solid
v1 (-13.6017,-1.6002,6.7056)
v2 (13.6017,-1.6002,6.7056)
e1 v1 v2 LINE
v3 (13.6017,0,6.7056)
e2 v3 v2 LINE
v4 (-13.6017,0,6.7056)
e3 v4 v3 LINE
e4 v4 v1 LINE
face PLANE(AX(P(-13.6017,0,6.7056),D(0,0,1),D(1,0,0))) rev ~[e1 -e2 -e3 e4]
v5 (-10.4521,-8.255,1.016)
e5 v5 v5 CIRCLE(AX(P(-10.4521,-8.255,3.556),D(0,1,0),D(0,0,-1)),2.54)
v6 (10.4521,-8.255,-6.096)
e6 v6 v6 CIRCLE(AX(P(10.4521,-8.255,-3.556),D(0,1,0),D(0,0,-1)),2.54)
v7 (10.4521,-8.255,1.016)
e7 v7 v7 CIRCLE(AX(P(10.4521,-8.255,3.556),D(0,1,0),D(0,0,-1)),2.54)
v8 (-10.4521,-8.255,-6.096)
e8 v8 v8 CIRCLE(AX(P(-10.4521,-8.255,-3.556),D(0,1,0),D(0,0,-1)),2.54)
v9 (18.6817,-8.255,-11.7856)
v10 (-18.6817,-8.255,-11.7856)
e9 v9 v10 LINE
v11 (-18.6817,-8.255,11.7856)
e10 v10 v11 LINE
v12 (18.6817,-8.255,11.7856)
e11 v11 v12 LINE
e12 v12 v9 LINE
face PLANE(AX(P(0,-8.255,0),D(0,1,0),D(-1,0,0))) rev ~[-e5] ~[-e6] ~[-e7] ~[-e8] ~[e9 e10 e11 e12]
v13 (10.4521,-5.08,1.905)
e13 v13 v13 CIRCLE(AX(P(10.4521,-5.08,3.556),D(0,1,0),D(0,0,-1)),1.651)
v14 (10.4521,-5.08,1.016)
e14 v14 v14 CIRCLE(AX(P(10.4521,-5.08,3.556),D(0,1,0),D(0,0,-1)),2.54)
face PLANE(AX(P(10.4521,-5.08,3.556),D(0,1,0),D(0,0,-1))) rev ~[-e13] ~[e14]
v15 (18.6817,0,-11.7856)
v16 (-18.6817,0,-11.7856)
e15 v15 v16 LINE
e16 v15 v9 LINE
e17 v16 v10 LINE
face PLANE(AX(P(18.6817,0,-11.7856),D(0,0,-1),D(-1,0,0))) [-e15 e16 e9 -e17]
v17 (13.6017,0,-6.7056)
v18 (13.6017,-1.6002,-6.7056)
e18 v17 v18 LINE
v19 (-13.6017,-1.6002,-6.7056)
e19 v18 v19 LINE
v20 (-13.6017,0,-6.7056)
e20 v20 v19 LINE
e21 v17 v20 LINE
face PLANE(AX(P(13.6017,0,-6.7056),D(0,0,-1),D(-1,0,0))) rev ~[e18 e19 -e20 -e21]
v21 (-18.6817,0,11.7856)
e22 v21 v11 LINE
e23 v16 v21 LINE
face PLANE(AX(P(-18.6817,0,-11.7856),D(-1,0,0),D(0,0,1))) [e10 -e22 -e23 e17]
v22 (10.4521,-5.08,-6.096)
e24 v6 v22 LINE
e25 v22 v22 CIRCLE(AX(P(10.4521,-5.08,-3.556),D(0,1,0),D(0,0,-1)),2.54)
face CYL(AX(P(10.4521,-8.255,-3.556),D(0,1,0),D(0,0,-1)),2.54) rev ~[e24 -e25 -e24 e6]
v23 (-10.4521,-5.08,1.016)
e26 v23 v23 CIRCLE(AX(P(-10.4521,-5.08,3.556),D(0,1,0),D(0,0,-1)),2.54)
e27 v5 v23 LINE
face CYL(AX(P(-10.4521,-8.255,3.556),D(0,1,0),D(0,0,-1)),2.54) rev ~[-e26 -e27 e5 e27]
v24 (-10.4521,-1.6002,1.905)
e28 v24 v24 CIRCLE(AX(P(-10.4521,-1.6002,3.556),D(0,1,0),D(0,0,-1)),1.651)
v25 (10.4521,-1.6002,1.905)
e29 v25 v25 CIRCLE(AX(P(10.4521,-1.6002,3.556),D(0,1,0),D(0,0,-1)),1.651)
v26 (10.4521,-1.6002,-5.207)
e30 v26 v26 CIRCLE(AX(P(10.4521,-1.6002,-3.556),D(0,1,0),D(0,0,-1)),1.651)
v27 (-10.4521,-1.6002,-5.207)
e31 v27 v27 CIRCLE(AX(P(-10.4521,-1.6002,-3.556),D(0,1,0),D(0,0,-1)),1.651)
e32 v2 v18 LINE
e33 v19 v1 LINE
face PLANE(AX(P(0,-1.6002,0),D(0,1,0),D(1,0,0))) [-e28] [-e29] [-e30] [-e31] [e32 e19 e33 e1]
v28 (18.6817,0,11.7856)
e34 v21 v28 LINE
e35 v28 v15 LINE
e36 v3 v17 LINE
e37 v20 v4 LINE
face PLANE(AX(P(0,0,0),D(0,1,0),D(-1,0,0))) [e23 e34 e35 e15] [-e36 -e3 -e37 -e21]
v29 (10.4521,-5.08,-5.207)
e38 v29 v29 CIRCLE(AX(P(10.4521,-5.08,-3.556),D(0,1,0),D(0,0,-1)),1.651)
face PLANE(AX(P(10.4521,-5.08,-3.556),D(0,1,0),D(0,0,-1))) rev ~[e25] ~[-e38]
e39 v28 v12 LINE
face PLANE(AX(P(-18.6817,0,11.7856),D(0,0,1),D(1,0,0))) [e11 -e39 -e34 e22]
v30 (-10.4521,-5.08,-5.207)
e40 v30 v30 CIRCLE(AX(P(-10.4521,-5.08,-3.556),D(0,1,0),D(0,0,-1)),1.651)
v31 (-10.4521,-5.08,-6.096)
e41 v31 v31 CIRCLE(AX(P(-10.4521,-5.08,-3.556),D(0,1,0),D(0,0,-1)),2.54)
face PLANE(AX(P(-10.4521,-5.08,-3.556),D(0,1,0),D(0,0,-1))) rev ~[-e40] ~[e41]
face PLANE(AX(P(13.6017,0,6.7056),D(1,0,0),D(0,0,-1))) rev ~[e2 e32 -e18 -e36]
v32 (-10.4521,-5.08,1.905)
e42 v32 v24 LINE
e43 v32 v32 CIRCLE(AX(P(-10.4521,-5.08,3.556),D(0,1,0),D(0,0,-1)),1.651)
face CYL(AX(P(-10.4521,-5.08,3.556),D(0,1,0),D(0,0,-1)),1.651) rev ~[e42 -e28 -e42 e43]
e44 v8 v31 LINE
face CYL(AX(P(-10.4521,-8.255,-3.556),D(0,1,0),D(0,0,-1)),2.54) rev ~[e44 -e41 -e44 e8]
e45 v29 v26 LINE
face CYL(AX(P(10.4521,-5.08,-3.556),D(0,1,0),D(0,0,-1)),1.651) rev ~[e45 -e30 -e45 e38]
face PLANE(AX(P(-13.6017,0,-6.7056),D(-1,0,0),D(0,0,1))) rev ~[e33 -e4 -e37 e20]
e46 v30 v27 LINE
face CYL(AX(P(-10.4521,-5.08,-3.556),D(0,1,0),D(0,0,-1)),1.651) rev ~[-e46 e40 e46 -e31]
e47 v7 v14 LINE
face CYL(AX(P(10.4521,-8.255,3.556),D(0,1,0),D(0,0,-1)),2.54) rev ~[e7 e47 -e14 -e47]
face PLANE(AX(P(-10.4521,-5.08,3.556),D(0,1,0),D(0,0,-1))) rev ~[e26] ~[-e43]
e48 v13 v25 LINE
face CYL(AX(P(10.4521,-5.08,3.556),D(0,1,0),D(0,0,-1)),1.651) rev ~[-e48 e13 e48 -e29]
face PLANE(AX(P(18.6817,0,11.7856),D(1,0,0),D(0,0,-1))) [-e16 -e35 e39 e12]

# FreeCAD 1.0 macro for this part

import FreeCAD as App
import Part
import Sketcher

V = App.Vector
Q = App.Units.Quantity

doc = App.newDocument("Part")
params = doc.addObject("Spreadsheet::Sheet", "Params")
for row, (alias, value) in enumerate([
    ("sketch1_width", "1.471 in"),
    ("sketch1_height", "0.928 in"),
    ("pad1_length", "0.325 in"),
    ("sketch2_width", "1.071 in"),
    ("sketch2_height", "0.528 in"),
    ("pocket1_length", "0.063 in"),
    ("sketch3_diameter", "0.2 in"),
    ("hole_diameter", "0.2 in"),
    ("hole_depth", "0.125 in"),
    ("sketch4_diameter", "0.13 in"),
    ("hole2_diameter", "0.13 in"),
], start=1):
    params.set(f"A{row}", alias)
    params.set(f"B{row}", "=" + value)
    params.setAlias(f"B{row}", alias)

body = doc.addObject("PartDesign::Body", "Body")

sketch1 = doc.addObject("Sketcher::SketchObject", "Sketch")
body.addObject(sketch1)
sketch1.AttachmentSupport = (doc.XZ_Plane, [""])
sketch1.MapMode = "FlatFace"
sketch1.addGeometry(Part.LineSegment(V(-19, -12, 0), V(-19, 12, 0)), False)
sketch1.addGeometry(Part.LineSegment(V(-19, 12, 0), V(19, 12, 0)), False)
sketch1.addGeometry(Part.LineSegment(V(19, 12, 0), V(19, -12, 0)), False)
sketch1.addGeometry(Part.LineSegment(V(19, -12, 0), V(-19, -12, 0)), False)
sketch1.addConstraint(Sketcher.Constraint("Coincident", 0, 2, 1, 1))
sketch1.addConstraint(Sketcher.Constraint("Coincident", 1, 2, 2, 1))
sketch1.addConstraint(Sketcher.Constraint("Coincident", 2, 2, 3, 1))
sketch1.addConstraint(Sketcher.Constraint("Coincident", 3, 2, 0, 1))
sketch1.addConstraint(Sketcher.Constraint("Vertical", 0))
sketch1.addConstraint(Sketcher.Constraint("Horizontal", 1))
sketch1.addConstraint(Sketcher.Constraint("Vertical", 2))
sketch1.addConstraint(Sketcher.Constraint("Horizontal", 3))
sketch1.addConstraint(Sketcher.Constraint("Symmetric", 0, 2, 2, 2, -1, 1))
sketch1.addConstraint(Sketcher.Constraint("DistanceX", 1, 1, 1, 2, Q("1.471 in")))
sketch1.addConstraint(Sketcher.Constraint("DistanceY", 0, 1, 0, 2, Q("0.928 in")))
sketch1.setExpression("Constraints[9]", "Params.sketch1_width")
sketch1.setExpression("Constraints[10]", "Params.sketch1_height")
pad1 = doc.addObject("PartDesign::Pad", "Pad")
body.addObject(pad1)
pad1.Profile = sketch1
pad1.setExpression("Length", "Params.pad1_length")

sketch2 = doc.addObject("Sketcher::SketchObject", "Sketch001")
body.addObject(sketch2)
sketch2.AttachmentSupport = (doc.XZ_Plane, [""])
sketch2.MapMode = "FlatFace"
sketch2.addGeometry(Part.LineSegment(V(-14, -7, 0), V(-14, 7, 0)), False)
sketch2.addGeometry(Part.LineSegment(V(-14, 7, 0), V(14, 7, 0)), False)
sketch2.addGeometry(Part.LineSegment(V(14, 7, 0), V(14, -7, 0)), False)
sketch2.addGeometry(Part.LineSegment(V(14, -7, 0), V(-14, -7, 0)), False)
sketch2.addConstraint(Sketcher.Constraint("Coincident", 0, 2, 1, 1))
sketch2.addConstraint(Sketcher.Constraint("Coincident", 1, 2, 2, 1))
sketch2.addConstraint(Sketcher.Constraint("Coincident", 2, 2, 3, 1))
sketch2.addConstraint(Sketcher.Constraint("Coincident", 3, 2, 0, 1))
sketch2.addConstraint(Sketcher.Constraint("Vertical", 0))
sketch2.addConstraint(Sketcher.Constraint("Horizontal", 1))
sketch2.addConstraint(Sketcher.Constraint("Vertical", 2))
sketch2.addConstraint(Sketcher.Constraint("Horizontal", 3))
sketch2.addConstraint(Sketcher.Constraint("Symmetric", 0, 2, 2, 2, -1, 1))
sketch2.addConstraint(Sketcher.Constraint("DistanceX", 1, 1, 1, 2, Q("1.071 in")))
sketch2.addConstraint(Sketcher.Constraint("DistanceY", 0, 1, 0, 2, Q("0.528 in")))
sketch2.setExpression("Constraints[9]", "Params.sketch2_width")
sketch2.setExpression("Constraints[10]", "Params.sketch2_height")
pocket1 = doc.addObject("PartDesign::Pocket", "Pocket")
body.addObject(pocket1)
pocket1.Profile = sketch2
pocket1.setExpression("Length", "Params.pocket1_length")
pocket1.Reversed = True

sketch3 = doc.addObject("Sketcher::SketchObject", "Sketch002")
body.addObject(sketch3)
sketch3.AttachmentSupport = (doc.XZ_Plane, [""])
sketch3.MapMode = "FlatFace"
sketch3.AttachmentOffset = App.Placement(V(0, 0, 0.325 * 25.4), App.Rotation())
sketch3.addGeometry(Part.Circle(V(10.5, -3.6, 0), V(0, 0, 1), 2.5), False)
sketch3.addGeometry(Part.Circle(V(-10.5, -3.6, 0), V(0, 0, 1), 2.5), False)
sketch3.addGeometry(Part.Circle(V(-10.5, 3.6, 0), V(0, 0, 1), 2.5), False)
sketch3.addGeometry(Part.Circle(V(10.5, 3.6, 0), V(0, 0, 1), 2.5), False)
sketch3.addConstraint(Sketcher.Constraint("Equal", 0, 1))
sketch3.addConstraint(Sketcher.Constraint("Equal", 1, 2))
sketch3.addConstraint(Sketcher.Constraint("Equal", 2, 3))
sketch3.addConstraint(Sketcher.Constraint("Symmetric", 0, 3, 2, 3, -1, 1))
sketch3.addConstraint(Sketcher.Constraint("Symmetric", 1, 3, 3, 3, -1, 1))
sketch3.addConstraint(Sketcher.Constraint("Symmetric", 0, 3, 1, 3, -2))
sketch3.addConstraint(Sketcher.Constraint("Diameter", 0, Q("0.2 in")))
sketch3.addConstraint(Sketcher.Constraint("DistanceY", 0, 3, -1, 1, Q("0.14 in")))
sketch3.addConstraint(Sketcher.Constraint("DistanceX", 1, 3, 0, 3, Q("0.823 in")))
sketch3.setExpression("Constraints[6]", "Params.sketch3_diameter")
doc.recompute()
hole = doc.addObject("PartDesign::Hole", "Hole")
body.addObject(hole)
hole.Profile = sketch3
hole.ThreadType = "None"
hole.setExpression("Diameter", "Params.hole_diameter")
hole.DepthType = "Dimension"
hole.setExpression("Depth", "Params.hole_depth")
hole.DrillPoint = "Flat"

sketch4 = doc.addObject("Sketcher::SketchObject", "Sketch003")
body.addObject(sketch4)
sketch4.AttachmentSupport = (doc.XZ_Plane, [""])
sketch4.MapMode = "FlatFace"
sketch4.AttachmentOffset = App.Placement(V(0, 0, 0.2 * 25.4), App.Rotation())
sketch4.addGeometry(Part.Circle(V(10.5, -3.6, 0), V(0, 0, 1), 1.7), False)
sketch4.addGeometry(Part.Circle(V(10.5, 3.6, 0), V(0, 0, 1), 1.7), False)
sketch4.addGeometry(Part.Circle(V(-10.5, 3.6, 0), V(0, 0, 1), 1.7), False)
sketch4.addGeometry(Part.Circle(V(-10.5, -3.6, 0), V(0, 0, 1), 1.7), False)
sketch4.addConstraint(Sketcher.Constraint("Equal", 0, 1))
sketch4.addConstraint(Sketcher.Constraint("Equal", 1, 2))
sketch4.addConstraint(Sketcher.Constraint("Equal", 2, 3))
sketch4.addConstraint(Sketcher.Constraint("Symmetric", 0, 3, 2, 3, -1, 1))
sketch4.addConstraint(Sketcher.Constraint("Symmetric", 1, 3, 3, 3, -1, 1))
sketch4.addConstraint(Sketcher.Constraint("Symmetric", 1, 3, 2, 3, -2))
sketch4.addConstraint(Sketcher.Constraint("Diameter", 0, Q("0.13 in")))
sketch4.addConstraint(Sketcher.Constraint("DistanceY", 0, 3, -1, 1, Q("0.14 in")))
sketch4.addConstraint(Sketcher.Constraint("DistanceX", 2, 3, 1, 3, Q("0.823 in")))
sketch4.setExpression("Constraints[6]", "Params.sketch4_diameter")
doc.recompute()
hole2 = doc.addObject("PartDesign::Hole", "Hole001")
body.addObject(hole2)
hole2.Profile = sketch4
hole2.ThreadType = "None"
hole2.setExpression("Diameter", "Params.hole2_diameter")
hole2.DepthType = "ThroughAll"

doc.recompute()
